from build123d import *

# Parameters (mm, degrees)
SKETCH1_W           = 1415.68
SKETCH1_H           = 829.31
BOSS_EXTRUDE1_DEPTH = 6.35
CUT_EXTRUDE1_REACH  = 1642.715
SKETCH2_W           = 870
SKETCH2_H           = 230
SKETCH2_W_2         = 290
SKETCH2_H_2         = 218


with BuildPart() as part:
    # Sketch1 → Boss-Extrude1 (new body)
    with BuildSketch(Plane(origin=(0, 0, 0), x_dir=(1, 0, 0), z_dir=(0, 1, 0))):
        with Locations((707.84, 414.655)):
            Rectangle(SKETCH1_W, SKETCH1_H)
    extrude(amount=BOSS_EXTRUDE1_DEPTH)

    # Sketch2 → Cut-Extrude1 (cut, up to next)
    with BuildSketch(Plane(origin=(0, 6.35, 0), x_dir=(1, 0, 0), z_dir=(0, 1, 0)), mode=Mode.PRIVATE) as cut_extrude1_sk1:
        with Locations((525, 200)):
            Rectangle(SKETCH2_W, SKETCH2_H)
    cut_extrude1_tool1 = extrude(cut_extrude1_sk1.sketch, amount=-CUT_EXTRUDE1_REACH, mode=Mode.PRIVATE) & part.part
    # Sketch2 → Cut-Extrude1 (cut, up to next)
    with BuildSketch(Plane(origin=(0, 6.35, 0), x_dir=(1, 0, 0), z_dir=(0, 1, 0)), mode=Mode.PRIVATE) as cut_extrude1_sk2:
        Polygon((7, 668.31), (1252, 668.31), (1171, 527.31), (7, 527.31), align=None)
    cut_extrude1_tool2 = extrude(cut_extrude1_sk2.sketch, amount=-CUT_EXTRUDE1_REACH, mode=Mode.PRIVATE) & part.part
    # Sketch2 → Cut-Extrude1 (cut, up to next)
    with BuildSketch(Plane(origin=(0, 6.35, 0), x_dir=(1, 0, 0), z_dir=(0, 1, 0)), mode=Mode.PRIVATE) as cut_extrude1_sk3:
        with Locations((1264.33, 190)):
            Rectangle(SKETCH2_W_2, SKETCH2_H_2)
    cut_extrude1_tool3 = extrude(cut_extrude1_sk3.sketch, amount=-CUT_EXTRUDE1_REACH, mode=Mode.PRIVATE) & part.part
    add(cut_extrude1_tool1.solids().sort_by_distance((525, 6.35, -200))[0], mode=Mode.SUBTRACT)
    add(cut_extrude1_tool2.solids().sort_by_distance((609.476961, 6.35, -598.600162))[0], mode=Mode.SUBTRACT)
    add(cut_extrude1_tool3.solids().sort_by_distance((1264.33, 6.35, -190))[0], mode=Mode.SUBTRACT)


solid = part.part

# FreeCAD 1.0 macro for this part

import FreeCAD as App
import Part
import Sketcher

doc = App.newDocument("Part")
body = doc.addObject("PartDesign::Body", "Body")

# Sketch on XZ plane
sketch1 = body.newObject("Sketcher::SketchObject", "Sketch")
sketch1.AttachmentSupport = (doc.getObject("XZ_Plane"), [""])
sketch1.MapMode = "FlatFace"
sketch1.addGeometry(Part.LineSegment(App.Vector(0, -829, 0), App.Vector(0, 0, 0)), False)
sketch1.addGeometry(Part.LineSegment(App.Vector(0, 0, 0), App.Vector(1416, 0, 0)), False)
sketch1.addGeometry(Part.LineSegment(App.Vector(1416, 0, 0), App.Vector(1416, -829, 0)), False)
sketch1.addGeometry(Part.LineSegment(App.Vector(1416, -829, 0), App.Vector(0, -829, 0)), False)
sketch1.addConstraint(Sketcher.Constraint("Coincident", 0, 2, 1, 1))
sketch1.addConstraint(Sketcher.Constraint("Coincident", 1, 2, 2, 1))
sketch1.addConstraint(Sketcher.Constraint("Coincident", 2, 2, 3, 1))
sketch1.addConstraint(Sketcher.Constraint("Coincident", 3, 2, 0, 1))
sketch1.addConstraint(Sketcher.Constraint("Vertical", 0))
sketch1.addConstraint(Sketcher.Constraint("Horizontal", 1))
sketch1.addConstraint(Sketcher.Constraint("Vertical", 2))
sketch1.addConstraint(Sketcher.Constraint("Horizontal", 3))
sketch1.addConstraint(Sketcher.Constraint("Coincident", 0, 2, -1, 1))
sketch1.addConstraint(Sketcher.Constraint("DistanceX", 1, 1, 1, 2, 1415.68))
sketch1.addConstraint(Sketcher.Constraint("DistanceY", 0, 1, 0, 2, 829.31))
pad1 = body.newObject("PartDesign::Pad", "Pad")
pad1.Profile = sketch1
pad1.Length = 6.35
pad1.Reversed = True

# Sketch on XZ plane
sketch2 = body.newObject("Sketcher::SketchObject", "Sketch001")
sketch2.AttachmentSupport = (doc.getObject("XZ_Plane"), [""])
sketch2.MapMode = "FlatFace"
sketch2.AttachmentOffset = App.Placement(App.Vector(0, 0, -6.35), App.Rotation())
sketch2.addGeometry(Part.LineSegment(App.Vector(90, -315, 0), App.Vector(90, -85, 0)), False)
sketch2.addGeometry(Part.LineSegment(App.Vector(90, -85, 0), App.Vector(960, -85, 0)), False)
sketch2.addGeometry(Part.LineSegment(App.Vector(960, -85, 0), App.Vector(960, -315, 0)), False)
sketch2.addGeometry(Part.LineSegment(App.Vector(960, -315, 0), App.Vector(90, -315, 0)), False)
sketch2.addConstraint(Sketcher.Constraint("Coincident", 0, 2, 1, 1))
sketch2.addConstraint(Sketcher.Constraint("Coincident", 1, 2, 2, 1))
sketch2.addConstraint(Sketcher.Constraint("Coincident", 2, 2, 3, 1))
sketch2.addConstraint(Sketcher.Constraint("Coincident", 3, 2, 0, 1))
sketch2.addConstraint(Sketcher.Constraint("Vertical", 0))
sketch2.addConstraint(Sketcher.Constraint("Horizontal", 1))
sketch2.addConstraint(Sketcher.Constraint("Vertical", 2))
sketch2.addConstraint(Sketcher.Constraint("Horizontal", 3))
sketch2.addConstraint(Sketcher.Constraint("DistanceX", 1, 1, 1, 2, 870.0))
sketch2.addConstraint(Sketcher.Constraint("DistanceY", 0, 1, 0, 2, 230.0))
sketch2.addConstraint(Sketcher.Constraint("DistanceX", -1, 1, 0, 2, 90.0))
sketch2.addConstraint(Sketcher.Constraint("DistanceY", 0, 2, -1, 1, 85.0))
pocket1 = body.newObject("PartDesign::Pocket", "Pocket")
pocket1.Profile = sketch2
pocket1.Type = "UpToFirst"
pocket1.Reversed = True

# Sketch on XZ plane
sketch3 = body.newObject("Sketcher::SketchObject", "Sketch002")
sketch3.AttachmentSupport = (doc.getObject("XZ_Plane"), [""])
sketch3.MapMode = "FlatFace"
sketch3.AttachmentOffset = App.Placement(App.Vector(0, 0, -6.35), App.Rotation())
sketch3.addGeometry(Part.LineSegment(App.Vector(1252, -668, 0), App.Vector(7, -668, 0)), False)
sketch3.addGeometry(Part.LineSegment(App.Vector(7, -668, 0), App.Vector(7, -527, 0)), False)
sketch3.addGeometry(Part.LineSegment(App.Vector(7, -527, 0), App.Vector(1171, -527, 0)), False)
sketch3.addGeometry(Part.LineSegment(App.Vector(1171, -527, 0), App.Vector(1252, -668, 0)), False)
sketch3.addConstraint(Sketcher.Constraint("Coincident", 0, 2, 1, 1))
sketch3.addConstraint(Sketcher.Constraint("Coincident", 1, 2, 2, 1))
sketch3.addConstraint(Sketcher.Constraint("Coincident", 2, 2, 3, 1))
sketch3.addConstraint(Sketcher.Constraint("Coincident", 3, 2, 0, 1))
sketch3.addConstraint(Sketcher.Constraint("Horizontal", 0))
sketch3.addConstraint(Sketcher.Constraint("Vertical", 1))
sketch3.addConstraint(Sketcher.Constraint("Horizontal", 2))
sketch3.addConstraint(Sketcher.Constraint("DistanceX", 0, 2, 0, 1, 1245.0))
sketch3.addConstraint(Sketcher.Constraint("DistanceX", 2, 1, 2, 2, 1164.0))
sketch3.addConstraint(Sketcher.Constraint("DistanceY", 1, 1, 1, 2, 141.0))
sketch3.addConstraint(Sketcher.Constraint("DistanceX", -1, 1, 0, 2, 7.0))
sketch3.addConstraint(Sketcher.Constraint("DistanceY", 0, 2, -1, 1, 668.31))
pocket2 = body.newObject("PartDesign::Pocket", "Pocket001")
pocket2.Profile = sketch3
pocket2.Type = "UpToFirst"
pocket2.Reversed = True

# Sketch on XZ plane
sketch4 = body.newObject("Sketcher::SketchObject", "Sketch003")
sketch4.AttachmentSupport = (doc.getObject("XZ_Plane"), [""])
sketch4.MapMode = "FlatFace"
sketch4.AttachmentOffset = App.Placement(App.Vector(0, 0, -6.35), App.Rotation())
sketch4.addGeometry(Part.LineSegment(App.Vector(1119, -299, 0), App.Vector(1119, -81, 0)), False)
sketch4.addGeometry(Part.LineSegment(App.Vector(1119, -81, 0), App.Vector(1409, -81, 0)), False)
sketch4.addGeometry(Part.LineSegment(App.Vector(1409, -81, 0), App.Vector(1409, -299, 0)), False)
sketch4.addGeometry(Part.LineSegment(App.Vector(1409, -299, 0), App.Vector(1119, -299, 0)), False)
sketch4.addConstraint(Sketcher.Constraint("Coincident", 0, 2, 1, 1))
sketch4.addConstraint(Sketcher.Constraint("Coincident", 1, 2, 2, 1))
sketch4.addConstraint(Sketcher.Constraint("Coincident", 2, 2, 3, 1))
sketch4.addConstraint(Sketcher.Constraint("Coincident", 3, 2, 0, 1))
sketch4.addConstraint(Sketcher.Constraint("Vertical", 0))
sketch4.addConstraint(Sketcher.Constraint("Horizontal", 1))
sketch4.addConstraint(Sketcher.Constraint("Vertical", 2))
sketch4.addConstraint(Sketcher.Constraint("Horizontal", 3))
sketch4.addConstraint(Sketcher.Constraint("DistanceX", 1, 1, 1, 2, 290.0))
sketch4.addConstraint(Sketcher.Constraint("DistanceY", 0, 1, 0, 2, 218.0))
sketch4.addConstraint(Sketcher.Constraint("DistanceY", 0, 2, -1, 1, 81.0))
sketch4.addConstraint(Sketcher.Constraint("DistanceX", -1, 1, 0, 2, 1119.33))
pocket3 = body.newObject("PartDesign::Pocket", "Pocket002")
pocket3.Profile = sketch4
pocket3.Type = "UpToFirst"
pocket3.Reversed = True

doc.recompute()
